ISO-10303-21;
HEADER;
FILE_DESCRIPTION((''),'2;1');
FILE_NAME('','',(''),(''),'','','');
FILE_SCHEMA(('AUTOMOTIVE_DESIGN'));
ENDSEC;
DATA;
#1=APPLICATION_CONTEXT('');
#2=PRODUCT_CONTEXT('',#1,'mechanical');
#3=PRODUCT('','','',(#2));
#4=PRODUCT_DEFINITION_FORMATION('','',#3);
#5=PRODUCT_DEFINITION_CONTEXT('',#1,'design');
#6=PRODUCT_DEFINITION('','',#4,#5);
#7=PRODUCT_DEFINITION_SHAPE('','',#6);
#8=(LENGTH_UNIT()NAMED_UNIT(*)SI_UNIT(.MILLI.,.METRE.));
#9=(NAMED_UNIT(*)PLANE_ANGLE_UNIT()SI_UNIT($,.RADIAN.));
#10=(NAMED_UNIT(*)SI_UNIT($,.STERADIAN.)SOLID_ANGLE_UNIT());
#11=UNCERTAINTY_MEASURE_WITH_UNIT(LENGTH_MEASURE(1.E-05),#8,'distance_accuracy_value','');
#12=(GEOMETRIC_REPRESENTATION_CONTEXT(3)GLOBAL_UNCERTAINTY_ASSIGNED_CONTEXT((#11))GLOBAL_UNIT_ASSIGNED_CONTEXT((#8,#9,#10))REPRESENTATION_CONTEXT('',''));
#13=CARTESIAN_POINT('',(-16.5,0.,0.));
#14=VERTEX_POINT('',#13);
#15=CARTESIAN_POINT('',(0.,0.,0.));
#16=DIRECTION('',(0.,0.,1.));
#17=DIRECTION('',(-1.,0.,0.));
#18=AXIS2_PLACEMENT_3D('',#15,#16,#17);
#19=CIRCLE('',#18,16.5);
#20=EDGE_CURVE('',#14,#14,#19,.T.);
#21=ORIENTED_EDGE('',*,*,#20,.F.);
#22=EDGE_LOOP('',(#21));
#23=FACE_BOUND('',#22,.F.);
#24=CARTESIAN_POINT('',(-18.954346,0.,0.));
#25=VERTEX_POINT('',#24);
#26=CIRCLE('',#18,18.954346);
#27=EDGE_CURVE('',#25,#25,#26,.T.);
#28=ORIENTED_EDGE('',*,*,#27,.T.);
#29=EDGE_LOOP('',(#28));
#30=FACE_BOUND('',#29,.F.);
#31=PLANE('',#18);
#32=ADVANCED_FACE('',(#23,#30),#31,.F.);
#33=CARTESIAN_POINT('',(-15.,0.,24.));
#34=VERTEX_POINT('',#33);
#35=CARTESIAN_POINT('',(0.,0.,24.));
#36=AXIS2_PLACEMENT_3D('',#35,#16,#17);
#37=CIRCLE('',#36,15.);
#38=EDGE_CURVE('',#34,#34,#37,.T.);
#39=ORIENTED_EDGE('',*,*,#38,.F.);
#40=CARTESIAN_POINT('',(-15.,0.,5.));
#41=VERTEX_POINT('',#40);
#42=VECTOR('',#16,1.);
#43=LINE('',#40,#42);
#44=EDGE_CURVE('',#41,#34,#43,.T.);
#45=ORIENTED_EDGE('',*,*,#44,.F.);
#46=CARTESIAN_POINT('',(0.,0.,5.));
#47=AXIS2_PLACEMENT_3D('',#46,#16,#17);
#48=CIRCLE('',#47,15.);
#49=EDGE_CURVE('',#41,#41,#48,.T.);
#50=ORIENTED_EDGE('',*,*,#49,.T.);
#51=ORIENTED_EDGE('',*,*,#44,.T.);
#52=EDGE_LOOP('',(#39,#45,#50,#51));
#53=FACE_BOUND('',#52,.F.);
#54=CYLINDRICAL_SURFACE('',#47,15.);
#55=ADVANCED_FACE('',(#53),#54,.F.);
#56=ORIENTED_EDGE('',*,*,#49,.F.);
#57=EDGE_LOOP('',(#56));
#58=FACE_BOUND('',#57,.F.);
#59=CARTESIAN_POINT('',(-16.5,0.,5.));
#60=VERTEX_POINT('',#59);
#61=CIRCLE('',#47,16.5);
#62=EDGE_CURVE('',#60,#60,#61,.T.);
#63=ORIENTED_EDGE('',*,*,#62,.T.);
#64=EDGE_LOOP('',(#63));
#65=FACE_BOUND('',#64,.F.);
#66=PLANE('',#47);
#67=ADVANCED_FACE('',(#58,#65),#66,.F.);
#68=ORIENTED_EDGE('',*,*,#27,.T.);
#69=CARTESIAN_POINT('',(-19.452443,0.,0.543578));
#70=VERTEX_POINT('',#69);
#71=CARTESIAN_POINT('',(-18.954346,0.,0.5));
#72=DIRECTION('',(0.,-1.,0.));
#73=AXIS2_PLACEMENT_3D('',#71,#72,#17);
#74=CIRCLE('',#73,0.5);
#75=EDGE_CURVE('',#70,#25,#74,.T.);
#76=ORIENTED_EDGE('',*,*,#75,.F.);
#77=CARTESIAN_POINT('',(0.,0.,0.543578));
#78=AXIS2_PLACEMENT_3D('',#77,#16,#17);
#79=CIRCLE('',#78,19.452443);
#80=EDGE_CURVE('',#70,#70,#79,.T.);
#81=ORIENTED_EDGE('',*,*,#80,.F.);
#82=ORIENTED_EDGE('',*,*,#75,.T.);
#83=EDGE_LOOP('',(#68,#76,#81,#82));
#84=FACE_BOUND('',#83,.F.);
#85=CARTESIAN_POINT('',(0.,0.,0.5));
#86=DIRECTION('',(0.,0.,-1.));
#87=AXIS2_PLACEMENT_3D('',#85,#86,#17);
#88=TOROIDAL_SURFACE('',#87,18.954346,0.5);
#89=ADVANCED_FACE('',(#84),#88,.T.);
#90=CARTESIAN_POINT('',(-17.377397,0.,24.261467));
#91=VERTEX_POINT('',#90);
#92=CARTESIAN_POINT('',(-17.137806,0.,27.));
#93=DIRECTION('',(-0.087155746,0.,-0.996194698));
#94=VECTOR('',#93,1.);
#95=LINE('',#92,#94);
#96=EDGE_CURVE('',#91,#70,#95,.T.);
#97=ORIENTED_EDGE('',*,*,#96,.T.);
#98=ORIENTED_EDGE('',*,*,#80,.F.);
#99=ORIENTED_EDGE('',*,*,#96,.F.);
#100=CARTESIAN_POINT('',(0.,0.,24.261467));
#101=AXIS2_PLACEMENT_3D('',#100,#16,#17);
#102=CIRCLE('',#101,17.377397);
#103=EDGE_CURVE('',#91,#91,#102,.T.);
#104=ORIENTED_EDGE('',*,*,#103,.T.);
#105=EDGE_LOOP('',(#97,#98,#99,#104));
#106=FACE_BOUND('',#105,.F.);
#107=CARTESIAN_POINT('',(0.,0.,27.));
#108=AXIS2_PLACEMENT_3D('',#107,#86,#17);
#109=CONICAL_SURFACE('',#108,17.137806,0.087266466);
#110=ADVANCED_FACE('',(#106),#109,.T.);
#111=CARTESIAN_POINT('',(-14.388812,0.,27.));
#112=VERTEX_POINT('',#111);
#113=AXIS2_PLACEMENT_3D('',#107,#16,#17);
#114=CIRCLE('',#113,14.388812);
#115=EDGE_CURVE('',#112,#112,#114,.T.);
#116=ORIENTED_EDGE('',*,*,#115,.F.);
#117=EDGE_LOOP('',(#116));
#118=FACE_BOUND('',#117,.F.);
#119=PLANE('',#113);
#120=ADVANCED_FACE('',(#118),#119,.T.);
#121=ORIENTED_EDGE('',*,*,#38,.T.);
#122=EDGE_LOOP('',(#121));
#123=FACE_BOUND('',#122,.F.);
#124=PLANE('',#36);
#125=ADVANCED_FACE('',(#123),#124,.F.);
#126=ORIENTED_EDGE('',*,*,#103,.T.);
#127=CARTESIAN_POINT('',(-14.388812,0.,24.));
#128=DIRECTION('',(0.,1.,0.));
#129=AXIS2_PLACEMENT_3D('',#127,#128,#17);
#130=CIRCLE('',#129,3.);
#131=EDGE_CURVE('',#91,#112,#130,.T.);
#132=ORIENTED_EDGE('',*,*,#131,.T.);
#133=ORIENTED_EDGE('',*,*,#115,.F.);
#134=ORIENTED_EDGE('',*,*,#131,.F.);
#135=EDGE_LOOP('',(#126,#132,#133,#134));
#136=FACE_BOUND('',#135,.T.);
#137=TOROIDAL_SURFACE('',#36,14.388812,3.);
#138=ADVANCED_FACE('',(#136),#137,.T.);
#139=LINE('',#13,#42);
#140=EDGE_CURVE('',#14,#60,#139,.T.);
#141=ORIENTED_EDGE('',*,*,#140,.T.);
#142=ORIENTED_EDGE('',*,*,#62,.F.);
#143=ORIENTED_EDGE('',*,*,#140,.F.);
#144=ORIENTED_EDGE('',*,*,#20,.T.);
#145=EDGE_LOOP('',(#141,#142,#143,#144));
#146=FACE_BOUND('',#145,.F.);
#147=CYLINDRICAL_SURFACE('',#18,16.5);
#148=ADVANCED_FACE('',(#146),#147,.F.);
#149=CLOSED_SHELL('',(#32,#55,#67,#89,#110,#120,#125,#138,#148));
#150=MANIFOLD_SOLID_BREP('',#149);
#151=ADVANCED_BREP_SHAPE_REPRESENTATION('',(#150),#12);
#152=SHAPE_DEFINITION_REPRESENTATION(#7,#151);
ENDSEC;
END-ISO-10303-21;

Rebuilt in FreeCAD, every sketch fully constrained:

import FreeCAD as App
import Part
import Sketcher

V = App.Vector
Q = App.Units.Quantity


def edges_at(feature, points):
    """Names of the edges that pass closest to the given points."""
    edges = feature.Shape.Edges
    near = lambda p: min(range(len(edges)), key=lambda i: edges[i].distToShape(Part.Vertex(*p))[0])
    return sorted({f"Edge{near(p) + 1}" for p in points})


def add_polygon(sketch, points):
    """Adds a closed chain of lines whose ends are joined by coincident constraints."""
    first, n = sketch.GeometryCount, len(points)
    for a, b in zip(points, points[1:] + points[:1]):
        sketch.addGeometry(Part.LineSegment(App.Vector(*a, 0), App.Vector(*b, 0)), False)
    for i in range(n):
        sketch.addConstraint(Sketcher.Constraint("Coincident", first + i, 2, first + (i + 1) % n, 1))

doc = App.newDocument("Part")
body = doc.addObject("PartDesign::Body", "Body")

sketch1 = body.newObject("Sketcher::SketchObject", "Sketch")
sketch1.AttachmentSupport = (doc.getObject("XZ_Plane"), [""])
sketch1.MapMode = "FlatFace"
add_polygon(sketch1, [(-17.1, 27), (-19.5, 0), (-16.5, 0), (-16.5, 5), (-15, 5), (-15, 24), (0, 24), (0, 27)])
sketch1.addConstraint(Sketcher.Constraint("Horizontal", 1))
sketch1.addConstraint(Sketcher.Constraint("Vertical", 2))
sketch1.addConstraint(Sketcher.Constraint("Horizontal", 3))
sketch1.addConstraint(Sketcher.Constraint("Vertical", 4))
sketch1.addConstraint(Sketcher.Constraint("Horizontal", 5))
sketch1.addConstraint(Sketcher.Constraint("Vertical", 6))
sketch1.addConstraint(Sketcher.Constraint("Horizontal", 7))
sketch1.addConstraint(Sketcher.Constraint("PointOnObject", 0, 2, -1))
sketch1.addConstraint(Sketcher.Constraint("PointOnObject", 5, 2, -2))
sketch1.addConstraint(Sketcher.Constraint("Equal", 1, 6))
sketch1.addConstraint(Sketcher.Constraint("DistanceX", 1, 1, 1, 2, 3.0))
sketch1.addConstraint(Sketcher.Constraint("DistanceX", 5, 1, 5, 2, 15.0))
sketch1.addConstraint(Sketcher.Constraint("DistanceY", 2, 1, 2, 2, 5.0))
sketch1.addConstraint(Sketcher.Constraint("DistanceY", 4, 1, 4, 2, 19.0))
sketch1.addConstraint(Sketcher.Constraint("Angle", 0, Q("-95 deg")))
sketch1.addConstraint(Sketcher.Constraint("DistanceX", 3, 1, 3, 2, 1.5))
revolution = body.newObject("PartDesign::Revolution", "Revolution")
revolution.Profile = sketch1
revolution.ReferenceAxis = (sketch1, ["V_Axis"])
revolution.Angle = 360
doc.recompute()

fillet = body.newObject("PartDesign::Fillet", "Fillet")
fillet.Base = (revolution, edges_at(revolution, [(17.138, 0, 27)]))
fillet.Radius = 3
doc.recompute()

fillet2 = body.newObject("PartDesign::Fillet", "Fillet001")
fillet2.Base = (fillet, edges_at(fillet, [(19.5, 0, 0)]))
fillet2.Radius = 0.5

doc.recompute()
